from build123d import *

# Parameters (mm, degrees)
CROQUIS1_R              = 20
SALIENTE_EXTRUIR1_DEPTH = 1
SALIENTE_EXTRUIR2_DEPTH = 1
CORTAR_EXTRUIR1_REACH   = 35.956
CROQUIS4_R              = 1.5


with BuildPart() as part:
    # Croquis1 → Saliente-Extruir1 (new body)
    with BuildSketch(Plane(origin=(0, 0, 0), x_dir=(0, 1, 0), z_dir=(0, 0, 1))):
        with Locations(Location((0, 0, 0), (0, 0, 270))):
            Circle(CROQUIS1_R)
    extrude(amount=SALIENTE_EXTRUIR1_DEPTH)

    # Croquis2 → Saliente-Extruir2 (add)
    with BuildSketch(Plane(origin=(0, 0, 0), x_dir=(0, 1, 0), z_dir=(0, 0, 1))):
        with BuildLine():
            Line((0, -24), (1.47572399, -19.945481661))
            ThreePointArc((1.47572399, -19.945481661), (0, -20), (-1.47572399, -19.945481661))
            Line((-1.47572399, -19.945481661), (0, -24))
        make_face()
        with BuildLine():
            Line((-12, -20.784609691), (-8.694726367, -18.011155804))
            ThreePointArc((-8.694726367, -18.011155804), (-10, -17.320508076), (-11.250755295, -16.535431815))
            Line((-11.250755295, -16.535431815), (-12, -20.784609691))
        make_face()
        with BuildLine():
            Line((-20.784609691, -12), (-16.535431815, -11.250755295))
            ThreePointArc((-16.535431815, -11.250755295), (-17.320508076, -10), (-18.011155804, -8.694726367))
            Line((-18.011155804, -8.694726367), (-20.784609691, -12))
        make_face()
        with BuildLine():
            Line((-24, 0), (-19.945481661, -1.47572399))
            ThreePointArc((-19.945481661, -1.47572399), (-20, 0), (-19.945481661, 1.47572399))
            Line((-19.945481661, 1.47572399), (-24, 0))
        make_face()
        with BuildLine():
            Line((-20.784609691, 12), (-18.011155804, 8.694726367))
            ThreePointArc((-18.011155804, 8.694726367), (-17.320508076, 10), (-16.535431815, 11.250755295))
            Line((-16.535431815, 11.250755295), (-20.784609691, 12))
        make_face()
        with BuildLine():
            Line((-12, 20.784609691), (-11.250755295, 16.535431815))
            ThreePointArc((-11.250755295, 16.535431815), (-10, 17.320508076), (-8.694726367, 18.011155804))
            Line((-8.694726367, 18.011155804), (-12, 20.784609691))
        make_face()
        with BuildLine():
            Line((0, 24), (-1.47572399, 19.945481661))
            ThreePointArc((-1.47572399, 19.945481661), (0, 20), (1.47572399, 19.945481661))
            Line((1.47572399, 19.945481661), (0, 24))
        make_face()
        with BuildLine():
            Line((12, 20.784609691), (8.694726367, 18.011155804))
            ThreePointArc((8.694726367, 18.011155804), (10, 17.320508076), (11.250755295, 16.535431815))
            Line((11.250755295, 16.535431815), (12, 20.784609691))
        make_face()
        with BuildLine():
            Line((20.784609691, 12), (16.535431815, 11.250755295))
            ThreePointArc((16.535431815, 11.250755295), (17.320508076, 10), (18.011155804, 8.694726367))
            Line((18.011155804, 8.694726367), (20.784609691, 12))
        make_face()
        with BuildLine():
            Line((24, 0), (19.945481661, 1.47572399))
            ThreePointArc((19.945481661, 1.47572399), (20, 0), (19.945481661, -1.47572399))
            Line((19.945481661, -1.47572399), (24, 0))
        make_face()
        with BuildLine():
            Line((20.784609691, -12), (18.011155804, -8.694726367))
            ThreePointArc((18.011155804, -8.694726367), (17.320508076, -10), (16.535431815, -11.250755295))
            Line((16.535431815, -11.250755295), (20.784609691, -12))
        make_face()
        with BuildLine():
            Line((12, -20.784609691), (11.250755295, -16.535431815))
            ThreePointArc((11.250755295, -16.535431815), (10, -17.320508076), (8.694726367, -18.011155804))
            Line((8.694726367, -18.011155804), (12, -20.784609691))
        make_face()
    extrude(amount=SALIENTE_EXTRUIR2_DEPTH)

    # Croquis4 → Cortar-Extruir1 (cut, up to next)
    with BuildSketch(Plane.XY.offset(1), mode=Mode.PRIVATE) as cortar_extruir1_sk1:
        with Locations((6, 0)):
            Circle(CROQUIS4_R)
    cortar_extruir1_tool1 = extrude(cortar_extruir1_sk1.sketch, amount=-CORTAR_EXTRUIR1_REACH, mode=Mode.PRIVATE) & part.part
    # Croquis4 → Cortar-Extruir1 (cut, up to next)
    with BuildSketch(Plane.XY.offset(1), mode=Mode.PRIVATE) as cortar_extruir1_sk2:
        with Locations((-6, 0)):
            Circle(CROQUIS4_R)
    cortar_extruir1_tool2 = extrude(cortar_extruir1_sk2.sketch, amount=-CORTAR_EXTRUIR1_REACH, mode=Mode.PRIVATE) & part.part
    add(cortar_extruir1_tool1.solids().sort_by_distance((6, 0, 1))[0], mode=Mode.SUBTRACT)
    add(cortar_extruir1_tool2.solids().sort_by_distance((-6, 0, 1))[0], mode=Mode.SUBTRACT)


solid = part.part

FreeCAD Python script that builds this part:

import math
import FreeCAD as App
import Part
import Sketcher
from FreeCAD import Vector
Q = App.Units.Quantity

doc = App.newDocument("Part")
body = doc.addObject("PartDesign::Body", "Body")

sketch1 = body.newObject("Sketcher::SketchObject", "Sketch")
sketch1.AttachmentSupport = (doc.getObject("XY_Plane"), [""])
sketch1.MapMode = "FlatFace"
sketch1.addGeometry(Part.Circle(Vector(0, 0, 0), Vector(0, 0, 1), 20), False)
sketch1.addConstraint([
    Sketcher.Constraint("Coincident", 0, 3, -1, 1),
    Sketcher.Constraint("Diameter", 0, 40.0),
])
pad1 = body.newObject("PartDesign::Pad", "Pad")
pad1.Profile = sketch1
pad1.Length = 1

sketch2 = body.newObject("Sketcher::SketchObject", "Sketch001")
sketch2.AttachmentSupport = (doc.getObject("XY_Plane"), [""])
sketch2.MapMode = "FlatFace"
sketch2.addGeometry([
    Part.LineSegment(Vector(24, 0, 0), Vector(19.9, 1.5, 0)),
    Part.ArcOfCircle(Part.Circle(Vector(0, 0, 0), Vector(0, 0, 1), 20), math.radians(-4.23), math.radians(4.23)),
    Part.LineSegment(Vector(19.9, -1.5, 0), Vector(24, 0, 0)),
    Part.LineSegment(Vector(20.8, -12, 0), Vector(18, -8.7, 0)),
    Part.ArcOfCircle(Part.Circle(Vector(0, 0, 0), Vector(0, 0, 1), 20), math.radians(-34.23), math.radians(-25.77)),
    Part.LineSegment(Vector(16.5, -11.3, 0), Vector(20.8, -12, 0)),
    Part.LineSegment(Vector(12, -20.8, 0), Vector(11.3, -16.5, 0)),
    Part.ArcOfCircle(Part.Circle(Vector(0, 0, 0), Vector(0, 0, 1), 20), math.radians(-64.23), math.radians(-55.77)),
    Part.LineSegment(Vector(8.7, -18, 0), Vector(12, -20.8, 0)),
    Part.LineSegment(Vector(0, -24, 0), Vector(1.5, -19.9, 0)),
    Part.ArcOfCircle(Part.Circle(Vector(0, 0, 0), Vector(0, 0, 1), 20), math.radians(-94.23), math.radians(-85.77)),
    Part.LineSegment(Vector(-1.5, -19.9, 0), Vector(0, -24, 0)),
    Part.LineSegment(Vector(-12, -20.8, 0), Vector(-8.7, -18, 0)),
    Part.ArcOfCircle(Part.Circle(Vector(0, 0, 0), Vector(0, 0, 1), 20), math.radians(-124.23), math.radians(-115.77)),
    Part.LineSegment(Vector(-11.3, -16.5, 0), Vector(-12, -20.8, 0)),
    Part.LineSegment(Vector(-20.8, -12, 0), Vector(-16.5, -11.3, 0)),
    Part.ArcOfCircle(Part.Circle(Vector(0, 0, 0), Vector(0, 0, 1), 20), math.radians(-154.23), math.radians(-145.77)),
    Part.LineSegment(Vector(-18, -8.7, 0), Vector(-20.8, -12, 0)),
    Part.LineSegment(Vector(-24, 0, 0), Vector(-19.9, -1.5, 0)),
    Part.ArcOfCircle(Part.Circle(Vector(0, 0, 0), Vector(0, 0, 1), 20), math.radians(175.77), math.radians(184.23)),
    Part.LineSegment(Vector(-19.9, 1.5, 0), Vector(-24, 0, 0)),
    Part.LineSegment(Vector(-20.8, 12, 0), Vector(-18, 8.7, 0)),
    Part.ArcOfCircle(Part.Circle(Vector(0, 0, 0), Vector(0, 0, 1), 20), math.radians(145.77), math.radians(154.23)),
    Part.LineSegment(Vector(-16.5, 11.3, 0), Vector(-20.8, 12, 0)),
    Part.LineSegment(Vector(-12, 20.8, 0), Vector(-11.3, 16.5, 0)),
    Part.ArcOfCircle(Part.Circle(Vector(0, 0, 0), Vector(0, 0, 1), 20), math.radians(115.77), math.radians(124.23)),
    Part.LineSegment(Vector(-8.7, 18, 0), Vector(-12, 20.8, 0)),
    Part.LineSegment(Vector(0, 24, 0), Vector(-1.5, 19.9, 0)),
    Part.ArcOfCircle(Part.Circle(Vector(0, 0, 0), Vector(0, 0, 1), 20), math.radians(85.77), math.radians(94.23)),
    Part.LineSegment(Vector(1.5, 19.9, 0), Vector(0, 24, 0)),
    Part.LineSegment(Vector(12, 20.8, 0), Vector(8.7, 18, 0)),
    Part.ArcOfCircle(Part.Circle(Vector(0, 0, 0), Vector(0, 0, 1), 20), math.radians(55.77), math.radians(64.23)),
    Part.LineSegment(Vector(11.3, 16.5, 0), Vector(12, 20.8, 0)),
    Part.LineSegment(Vector(20.8, 12, 0), Vector(16.5, 11.3, 0)),
    Part.ArcOfCircle(Part.Circle(Vector(0, 0, 0), Vector(0, 0, 1), 20), math.radians(25.77), math.radians(34.23)),
    Part.LineSegment(Vector(18, 8.7, 0), Vector(20.8, 12, 0)),
], False)
sketch2.addConstraint([
    Sketcher.Constraint("Coincident", 0, 2, 1, 2),
    Sketcher.Constraint("Coincident", 1, 1, 2, 1),
    Sketcher.Constraint("Coincident", 2, 2, 0, 1),
    Sketcher.Constraint("Coincident", 3, 2, 4, 2),
    Sketcher.Constraint("Coincident", 4, 1, 5, 1),
    Sketcher.Constraint("Coincident", 5, 2, 3, 1),
    Sketcher.Constraint("Coincident", 6, 2, 7, 2),
    Sketcher.Constraint("Coincident", 7, 1, 8, 1),
    Sketcher.Constraint("Coincident", 8, 2, 6, 1),
    Sketcher.Constraint("Coincident", 9, 2, 10, 2),
    Sketcher.Constraint("Coincident", 10, 1, 11, 1),
    Sketcher.Constraint("Coincident", 11, 2, 9, 1),
    Sketcher.Constraint("Coincident", 12, 2, 13, 2),
    Sketcher.Constraint("Coincident", 13, 1, 14, 1),
    Sketcher.Constraint("Coincident", 14, 2, 12, 1),
    Sketcher.Constraint("Coincident", 15, 2, 16, 2),
    Sketcher.Constraint("Coincident", 16, 1, 17, 1),
    Sketcher.Constraint("Coincident", 17, 2, 15, 1),
    Sketcher.Constraint("Coincident", 18, 2, 19, 2),
    Sketcher.Constraint("Coincident", 19, 1, 20, 1),
    Sketcher.Constraint("Coincident", 20, 2, 18, 1),
    Sketcher.Constraint("Coincident", 21, 2, 22, 2),
    Sketcher.Constraint("Coincident", 22, 1, 23, 1),
    Sketcher.Constraint("Coincident", 23, 2, 21, 1),
    Sketcher.Constraint("Coincident", 24, 2, 25, 2),
    Sketcher.Constraint("Coincident", 25, 1, 26, 1),
    Sketcher.Constraint("Coincident", 26, 2, 24, 1),
    Sketcher.Constraint("Coincident", 27, 2, 28, 2),
    Sketcher.Constraint("Coincident", 28, 1, 29, 1),
    Sketcher.Constraint("Coincident", 29, 2, 27, 1),
    Sketcher.Constraint("Coincident", 30, 2, 31, 2),
    Sketcher.Constraint("Coincident", 31, 1, 32, 1),
    Sketcher.Constraint("Coincident", 32, 2, 30, 1),
    Sketcher.Constraint("Coincident", 33, 2, 34, 2),
    Sketcher.Constraint("Coincident", 34, 1, 35, 1),
    Sketcher.Constraint("Coincident", 35, 2, 33, 1),
    Sketcher.Constraint("Coincident", 1, 3, -1, 1),
    Sketcher.Constraint("Coincident", 4, 3, -1, 1),
    Sketcher.Constraint("Coincident", 7, 3, -1, 1),
    Sketcher.Constraint("Coincident", 10, 3, -1, 1),
    Sketcher.Constraint("Coincident", 13, 3, -1, 1),
    Sketcher.Constraint("Coincident", 16, 3, -1, 1),
    Sketcher.Constraint("Coincident", 19, 3, -1, 1),
    Sketcher.Constraint("Coincident", 22, 3, -1, 1),
    Sketcher.Constraint("Coincident", 25, 3, -1, 1),
    Sketcher.Constraint("Coincident", 28, 3, -1, 1),
    Sketcher.Constraint("Coincident", 31, 3, -1, 1),
    Sketcher.Constraint("Coincident", 34, 3, -1, 1),
    Sketcher.Constraint("Equal", 1, 4),
    Sketcher.Constraint("Equal", 4, 7),
    Sketcher.Constraint("Equal", 7, 10),
    Sketcher.Constraint("Equal", 10, 13),
    Sketcher.Constraint("Equal", 13, 16),
    Sketcher.Constraint("Equal", 16, 19),
    Sketcher.Constraint("Equal", 19, 22),
    Sketcher.Constraint("Equal", 22, 25),
    Sketcher.Constraint("Equal", 25, 28),
    Sketcher.Constraint("Equal", 28, 31),
    Sketcher.Constraint("Equal", 31, 34),
    Sketcher.Constraint("Symmetric", 2, 2, 20, 2, -1, 1),
    Sketcher.Constraint("Symmetric", 5, 2, 23, 2, -1, 1),
    Sketcher.Constraint("Symmetric", 8, 2, 26, 2, -1, 1),
    Sketcher.Constraint("Symmetric", 11, 2, 29, 2, -1, 1),
    Sketcher.Constraint("Symmetric", 14, 2, 32, 2, -1, 1),
    Sketcher.Constraint("Symmetric", 17, 2, 35, 2, -1, 1),
    Sketcher.Constraint("Symmetric", 8, 2, 14, 2, -2),
    Sketcher.Constraint("Symmetric", 5, 2, 17, 2, -2),
    Sketcher.Constraint("PointOnObject", 2, 2, -1),
    Sketcher.Constraint("PointOnObject", 11, 2, -2),
    Sketcher.Constraint("Perpendicular", 0, 9),
    Sketcher.Constraint("Perpendicular", 2, 11),
    Sketcher.Constraint("Perpendicular", 3, 12),
    Sketcher.Constraint("Perpendicular", 5, 14),
    Sketcher.Constraint("Perpendicular", 6, 15),
    Sketcher.Constraint("Perpendicular", 8, 17),
    Sketcher.Constraint("Perpendicular", 9, 18),
    Sketcher.Constraint("Perpendicular", 11, 20),
    Sketcher.Constraint("Perpendicular", 12, 21),
    Sketcher.Constraint("Perpendicular", 14, 23),
    Sketcher.Constraint("Perpendicular", 15, 24),
    Sketcher.Constraint("Perpendicular", 17, 26),
    Sketcher.Constraint("Perpendicular", 18, 27),
    Sketcher.Constraint("Perpendicular", 20, 29),
    Sketcher.Constraint("Perpendicular", 21, 30),
    Sketcher.Constraint("Perpendicular", 23, 32),
    Sketcher.Constraint("Perpendicular", 24, 33),
    Sketcher.Constraint("Perpendicular", 26, 35),
    Sketcher.Constraint("Horizontal", 9, 2, 10, 1),
    Sketcher.Constraint("Horizontal", 7, 1, 12, 2),
    Sketcher.Constraint("Horizontal", 6, 2, 13, 1),
    Sketcher.Constraint("Equal", 2, 3),
    Sketcher.Constraint("Equal", 3, 5),
    Sketcher.Constraint("Equal", 5, 6),
    Sketcher.Constraint("Equal", 6, 8),
    Sketcher.Constraint("Equal", 8, 9),
    Sketcher.Constraint("Radius", 1, 20.0),
    Sketcher.Constraint("Angle", 0, Q("160 deg")),
    Sketcher.Constraint("Angle", 3, Q("130 deg")),
    Sketcher.Constraint("Angle", 5, Q("-10 deg")),
    Sketcher.Constraint("DistanceX", -1, 1, 2, 2, 24.0),
])
pad2 = body.newObject("PartDesign::Pad", "Pad001")
pad2.Profile = sketch2
pad2.Length = 1

sketch3 = body.newObject("Sketcher::SketchObject", "Sketch002")
sketch3.AttachmentSupport = (doc.getObject("XY_Plane"), [""])
sketch3.MapMode = "FlatFace"
sketch3.AttachmentOffset = App.Placement(Vector(0, 0, 1), App.Rotation())
sketch3.addGeometry(Part.Circle(Vector(6, 0, 0), Vector(0, 0, 1), 1.5), False)
sketch3.addConstraint([
    Sketcher.Constraint("PointOnObject", 0, 3, -1),
    Sketcher.Constraint("Diameter", 0, 3.0),
    Sketcher.Constraint("DistanceX", -1, 1, 0, 3, 6.0),
])
pocket1 = body.newObject("PartDesign::Pocket", "Pocket")
pocket1.Profile = sketch3
pocket1.Type = "UpToFirst"

sketch4 = body.newObject("Sketcher::SketchObject", "Sketch003")
sketch4.AttachmentSupport = (doc.getObject("XY_Plane"), [""])
sketch4.MapMode = "FlatFace"
sketch4.AttachmentOffset = App.Placement(Vector(0, 0, 1), App.Rotation())
sketch4.addGeometry(Part.Circle(Vector(-6, 0, 0), Vector(0, 0, 1), 1.5), False)
sketch4.addConstraint([
    Sketcher.Constraint("PointOnObject", 0, 3, -1),
    Sketcher.Constraint("Diameter", 0, 3.0),
    Sketcher.Constraint("DistanceX", 0, 3, -1, 1, 6.0),
])
pocket2 = body.newObject("PartDesign::Pocket", "Pocket001")
pocket2.Profile = sketch4
pocket2.Type = "UpToFirst"

doc.recompute()
